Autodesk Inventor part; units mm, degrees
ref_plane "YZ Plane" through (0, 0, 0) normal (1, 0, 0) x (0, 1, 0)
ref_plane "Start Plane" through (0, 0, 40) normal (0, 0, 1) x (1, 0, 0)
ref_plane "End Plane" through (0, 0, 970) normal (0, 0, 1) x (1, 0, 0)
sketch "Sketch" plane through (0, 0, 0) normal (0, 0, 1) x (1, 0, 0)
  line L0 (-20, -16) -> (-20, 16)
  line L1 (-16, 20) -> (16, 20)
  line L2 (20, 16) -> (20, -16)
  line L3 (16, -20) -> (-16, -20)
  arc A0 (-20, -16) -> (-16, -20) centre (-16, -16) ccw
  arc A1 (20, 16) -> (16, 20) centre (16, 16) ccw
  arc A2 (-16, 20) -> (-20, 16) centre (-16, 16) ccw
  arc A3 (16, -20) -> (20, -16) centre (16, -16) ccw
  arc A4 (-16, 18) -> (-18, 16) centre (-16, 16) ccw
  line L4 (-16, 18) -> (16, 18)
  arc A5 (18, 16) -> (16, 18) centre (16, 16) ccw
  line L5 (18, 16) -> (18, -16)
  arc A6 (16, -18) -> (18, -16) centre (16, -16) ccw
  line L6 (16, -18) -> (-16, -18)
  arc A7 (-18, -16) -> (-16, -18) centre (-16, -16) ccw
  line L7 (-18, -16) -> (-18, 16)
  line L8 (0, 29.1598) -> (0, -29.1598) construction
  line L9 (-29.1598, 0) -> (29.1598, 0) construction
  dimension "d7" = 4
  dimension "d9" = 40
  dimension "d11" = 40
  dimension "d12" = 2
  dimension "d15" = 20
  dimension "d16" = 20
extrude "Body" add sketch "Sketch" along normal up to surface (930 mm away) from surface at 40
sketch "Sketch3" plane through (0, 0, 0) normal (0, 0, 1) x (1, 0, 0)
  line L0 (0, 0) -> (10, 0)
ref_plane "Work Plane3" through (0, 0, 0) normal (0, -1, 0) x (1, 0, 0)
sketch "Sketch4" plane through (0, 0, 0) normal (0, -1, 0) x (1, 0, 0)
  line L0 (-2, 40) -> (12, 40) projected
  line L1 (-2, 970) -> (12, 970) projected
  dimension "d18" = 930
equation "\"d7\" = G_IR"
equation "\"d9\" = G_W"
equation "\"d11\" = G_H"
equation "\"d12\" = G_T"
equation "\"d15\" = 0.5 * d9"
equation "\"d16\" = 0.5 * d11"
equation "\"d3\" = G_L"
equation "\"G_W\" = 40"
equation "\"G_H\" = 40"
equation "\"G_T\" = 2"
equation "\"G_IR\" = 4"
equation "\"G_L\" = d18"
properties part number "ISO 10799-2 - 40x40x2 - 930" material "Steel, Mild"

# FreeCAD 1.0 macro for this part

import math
import FreeCAD as App
import Part
import Sketcher
from FreeCAD import Vector
Q = App.Units.Quantity

doc = App.newDocument("Part")
params = doc.addObject("Spreadsheet::Sheet", "Params")
for row, (alias, value) in enumerate([
    ("sketch1_radius", "4 mm"),
    ("sketch1_radius2", "2 mm"),
    ("pad1_length", "930 mm"),
], start=1):
    params.set(f"A{row}", alias)
    params.set(f"B{row}", "=" + value)
    params.setAlias(f"B{row}", alias)

body = doc.addObject("PartDesign::Body", "Body")

sketch1 = body.newObject("Sketcher::SketchObject", "Sketch")
sketch1.AttachmentSupport = (doc.getObject("XY_Plane"), [""])
sketch1.MapMode = "FlatFace"
sketch1.AttachmentOffset = App.Placement(Vector(0, 0, 40), App.Rotation())
sketch1.addGeometry([
    Part.LineSegment(Vector(-20, 16, 0), Vector(-20, -16, 0)),
    Part.ArcOfCircle(Part.Circle(Vector(-16, -16, 0), Vector(0, 0, 1), 4), math.radians(180), math.radians(270)),
    Part.LineSegment(Vector(-16, -20, 0), Vector(16, -20, 0)),
    Part.ArcOfCircle(Part.Circle(Vector(16, -16, 0), Vector(0, 0, 1), 4), math.radians(-90), math.radians(0)),
    Part.LineSegment(Vector(20, -16, 0), Vector(20, 16, 0)),
    Part.ArcOfCircle(Part.Circle(Vector(16, 16, 0), Vector(0, 0, 1), 4), math.radians(0), math.radians(90)),
    Part.LineSegment(Vector(16, 20, 0), Vector(-16, 20, 0)),
    Part.ArcOfCircle(Part.Circle(Vector(-16, 16, 0), Vector(0, 0, 1), 4), math.radians(90), math.radians(180)),
    Part.ArcOfCircle(Part.Circle(Vector(-16, 16, 0), Vector(0, 0, 1), 2), math.radians(90), math.radians(180)),
    Part.LineSegment(Vector(-16, 18, 0), Vector(16, 18, 0)),
    Part.ArcOfCircle(Part.Circle(Vector(16, 16, 0), Vector(0, 0, 1), 2), math.radians(0), math.radians(90)),
    Part.LineSegment(Vector(18, 16, 0), Vector(18, -16, 0)),
    Part.ArcOfCircle(Part.Circle(Vector(16, -16, 0), Vector(0, 0, 1), 2), math.radians(-90), math.radians(0)),
    Part.LineSegment(Vector(16, -18, 0), Vector(-16, -18, 0)),
    Part.ArcOfCircle(Part.Circle(Vector(-16, -16, 0), Vector(0, 0, 1), 2), math.radians(180), math.radians(270)),
    Part.LineSegment(Vector(-18, -16, 0), Vector(-18, 16, 0)),
], False)
sketch1.addConstraint([
    Sketcher.Constraint("Tangent", 0, 2, 1, 1),
    Sketcher.Constraint("Tangent", 1, 2, 2, 1),
    Sketcher.Constraint("Tangent", 2, 2, 3, 1),
    Sketcher.Constraint("Tangent", 3, 2, 4, 1),
    Sketcher.Constraint("Tangent", 4, 2, 5, 1),
    Sketcher.Constraint("Tangent", 5, 2, 6, 1),
    Sketcher.Constraint("Tangent", 6, 2, 7, 1),
    Sketcher.Constraint("Tangent", 7, 2, 0, 1),
    Sketcher.Constraint("Tangent", 8, 1, 9, 1),
    Sketcher.Constraint("Tangent", 9, 2, 10, 2),
    Sketcher.Constraint("Tangent", 10, 1, 11, 1),
    Sketcher.Constraint("Tangent", 11, 2, 12, 2),
    Sketcher.Constraint("Tangent", 12, 1, 13, 1),
    Sketcher.Constraint("Tangent", 13, 2, 14, 2),
    Sketcher.Constraint("Tangent", 14, 1, 15, 1),
    Sketcher.Constraint("Tangent", 15, 2, 8, 2),
    Sketcher.Constraint("Vertical", 0),
    Sketcher.Constraint("Horizontal", 2),
    Sketcher.Constraint("Vertical", 4),
    Sketcher.Constraint("Horizontal", 6),
    Sketcher.Constraint("Horizontal", 9),
    Sketcher.Constraint("Vertical", 11),
    Sketcher.Constraint("Horizontal", 13),
    Sketcher.Constraint("Vertical", 15),
    Sketcher.Constraint("Coincident", 8, 3, 7, 3),
    Sketcher.Constraint("Coincident", 10, 3, 5, 3),
    Sketcher.Constraint("Coincident", 12, 3, 3, 3),
    Sketcher.Constraint("Equal", 1, 3),
    Sketcher.Constraint("Equal", 3, 5),
    Sketcher.Constraint("Equal", 5, 7),
    Sketcher.Constraint("Equal", 12, 14),
    Sketcher.Constraint("Symmetric", 1, 3, 5, 3, -1, 1),
    Sketcher.Constraint("Equal", 13, 0),
    Sketcher.Constraint("Radius", 1, Q("4 mm")),
    Sketcher.Constraint("Radius", 8, Q("2 mm")),
    Sketcher.Constraint("DistanceX", 0, 2, -1, 1, Q("20 mm")),
])
sketch1.setExpression("Constraints[33]", "Params.sketch1_radius")
sketch1.setExpression("Constraints[34]", "Params.sketch1_radius2")
pad1 = body.newObject("PartDesign::Pad", "Pad")
pad1.Profile = sketch1
pad1.setExpression("Length", "Params.pad1_length")

doc.recompute()
